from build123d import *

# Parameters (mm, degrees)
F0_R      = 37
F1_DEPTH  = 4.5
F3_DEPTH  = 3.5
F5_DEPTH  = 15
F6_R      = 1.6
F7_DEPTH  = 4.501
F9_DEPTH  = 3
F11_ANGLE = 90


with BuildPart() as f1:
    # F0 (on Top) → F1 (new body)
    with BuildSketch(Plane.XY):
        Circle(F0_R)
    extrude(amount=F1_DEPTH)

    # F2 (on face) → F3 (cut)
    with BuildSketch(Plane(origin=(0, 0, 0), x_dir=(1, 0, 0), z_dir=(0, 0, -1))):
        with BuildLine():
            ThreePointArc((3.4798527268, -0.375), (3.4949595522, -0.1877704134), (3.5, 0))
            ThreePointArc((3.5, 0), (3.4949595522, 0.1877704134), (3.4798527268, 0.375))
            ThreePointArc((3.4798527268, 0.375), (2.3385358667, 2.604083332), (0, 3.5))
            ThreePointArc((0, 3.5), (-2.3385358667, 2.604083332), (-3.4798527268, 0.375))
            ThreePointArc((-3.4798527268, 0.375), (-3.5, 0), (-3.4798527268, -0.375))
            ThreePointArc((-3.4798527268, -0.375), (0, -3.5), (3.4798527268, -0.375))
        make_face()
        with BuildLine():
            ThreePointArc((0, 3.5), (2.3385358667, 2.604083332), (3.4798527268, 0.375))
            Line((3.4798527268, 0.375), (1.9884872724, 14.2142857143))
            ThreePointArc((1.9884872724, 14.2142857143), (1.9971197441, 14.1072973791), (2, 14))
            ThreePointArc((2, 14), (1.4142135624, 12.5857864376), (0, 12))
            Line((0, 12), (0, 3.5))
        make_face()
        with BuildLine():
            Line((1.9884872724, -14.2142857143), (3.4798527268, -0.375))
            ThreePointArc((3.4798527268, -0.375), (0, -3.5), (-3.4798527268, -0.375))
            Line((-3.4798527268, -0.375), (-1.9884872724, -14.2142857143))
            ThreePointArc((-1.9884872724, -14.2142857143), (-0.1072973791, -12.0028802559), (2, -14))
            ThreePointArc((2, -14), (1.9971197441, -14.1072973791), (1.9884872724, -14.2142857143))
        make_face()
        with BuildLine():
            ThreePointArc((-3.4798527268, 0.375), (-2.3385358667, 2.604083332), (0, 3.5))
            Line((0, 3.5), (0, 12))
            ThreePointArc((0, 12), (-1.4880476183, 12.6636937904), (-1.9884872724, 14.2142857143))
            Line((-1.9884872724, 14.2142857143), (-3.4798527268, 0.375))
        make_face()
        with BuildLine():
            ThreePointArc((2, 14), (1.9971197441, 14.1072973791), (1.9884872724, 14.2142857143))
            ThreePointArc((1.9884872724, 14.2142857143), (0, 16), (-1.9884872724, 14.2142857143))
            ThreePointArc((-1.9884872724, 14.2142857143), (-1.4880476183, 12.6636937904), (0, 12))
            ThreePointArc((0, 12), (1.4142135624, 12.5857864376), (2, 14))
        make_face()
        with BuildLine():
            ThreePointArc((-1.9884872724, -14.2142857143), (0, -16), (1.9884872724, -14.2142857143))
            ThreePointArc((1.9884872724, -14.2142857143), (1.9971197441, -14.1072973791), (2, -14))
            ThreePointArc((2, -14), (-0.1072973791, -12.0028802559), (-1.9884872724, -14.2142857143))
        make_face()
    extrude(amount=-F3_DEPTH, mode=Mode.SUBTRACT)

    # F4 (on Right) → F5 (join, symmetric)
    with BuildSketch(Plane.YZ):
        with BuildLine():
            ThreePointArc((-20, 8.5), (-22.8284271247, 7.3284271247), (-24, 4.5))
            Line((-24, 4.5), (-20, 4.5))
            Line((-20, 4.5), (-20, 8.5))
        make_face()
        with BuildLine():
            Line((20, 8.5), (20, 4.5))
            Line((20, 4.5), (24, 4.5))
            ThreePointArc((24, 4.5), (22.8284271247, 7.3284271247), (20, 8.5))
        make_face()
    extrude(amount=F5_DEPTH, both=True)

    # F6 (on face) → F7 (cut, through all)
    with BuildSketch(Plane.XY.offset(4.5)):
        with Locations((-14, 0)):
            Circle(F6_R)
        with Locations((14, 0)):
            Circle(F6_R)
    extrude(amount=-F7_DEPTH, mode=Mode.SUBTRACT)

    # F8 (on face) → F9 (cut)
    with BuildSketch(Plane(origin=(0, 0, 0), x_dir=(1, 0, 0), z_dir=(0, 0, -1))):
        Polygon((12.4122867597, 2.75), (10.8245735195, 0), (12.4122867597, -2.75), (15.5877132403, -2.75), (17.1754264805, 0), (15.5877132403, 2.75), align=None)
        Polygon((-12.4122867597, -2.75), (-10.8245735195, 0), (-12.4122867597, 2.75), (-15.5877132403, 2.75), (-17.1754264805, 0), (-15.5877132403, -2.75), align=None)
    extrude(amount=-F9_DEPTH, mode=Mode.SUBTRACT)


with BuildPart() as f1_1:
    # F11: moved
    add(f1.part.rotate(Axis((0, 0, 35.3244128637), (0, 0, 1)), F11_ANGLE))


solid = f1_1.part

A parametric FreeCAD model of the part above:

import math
import FreeCAD as App
import Part
import Sketcher
from FreeCAD import Vector
Q = App.Units.Quantity


def add_polygon(sketch, points):
    """Adds a closed chain of lines whose ends are joined by coincident constraints."""
    first, n = sketch.GeometryCount, len(points)
    for a, b in zip(points, points[1:] + points[:1]):
        sketch.addGeometry(Part.LineSegment(App.Vector(*a, 0), App.Vector(*b, 0)), False)
    for i in range(n):
        sketch.addConstraint(Sketcher.Constraint("Coincident", first + i, 2, first + (i + 1) % n, 1))

doc = App.newDocument("Part")
body = doc.addObject("PartDesign::Body", "Body")

sketch1 = body.newObject("Sketcher::SketchObject", "Sketch")
sketch1.AttachmentSupport = (doc.getObject("XY_Plane"), [""])
sketch1.MapMode = "FlatFace"
sketch1.addGeometry(Part.Circle(Vector(0, 0, 0), Vector(0, 0, 1), 37), False)
sketch1.addConstraint([
    Sketcher.Constraint("Coincident", 0, 3, -1, 1),
    Sketcher.Constraint("Diameter", 0, Q("74 mm")),
])
pad1 = body.newObject("PartDesign::Pad", "Pad")
pad1.Profile = sketch1
pad1.Length = 4.5

sketch2 = body.newObject("Sketcher::SketchObject", "Sketch001")
sketch2.AttachmentSupport = (doc.getObject("XY_Plane"), [""])
sketch2.MapMode = "FlatFace"
sketch2.addGeometry([
    Part.ArcOfCircle(Part.Circle(Vector(0, 0, 0), Vector(0, 0, 1), 3.5), math.radians(0), math.radians(6.15)),
    Part.ArcOfCircle(Part.Circle(Vector(0, 0, 0), Vector(0, 0, 1), 3.5), math.radians(-6.15), math.radians(0)),
    Part.LineSegment(Vector(3.48, -0.38, 0), Vector(1.99, -14.21, 0)),
    Part.ArcOfCircle(Part.Circle(Vector(0, -14, 0), Vector(0, 0, 1), 2), math.radians(-174), math.radians(-6)),
    Part.LineSegment(Vector(-1.99, -14.21, 0), Vector(-3.48, -0.38, 0)),
    Part.ArcOfCircle(Part.Circle(Vector(0, 0, 0), Vector(0, 0, 1), 3.5), math.radians(173.85), math.radians(186.15)),
    Part.LineSegment(Vector(-3.48, 0.38, 0), Vector(-1.99, 14.21, 0)),
    Part.ArcOfCircle(Part.Circle(Vector(0, 14, 0), Vector(0, 0, 1), 2), math.radians(6), math.radians(174)),
    Part.LineSegment(Vector(1.99, 14.21, 0), Vector(3.48, 0.38, 0)),
], False)
sketch2.addConstraint([
    Sketcher.Constraint("Tangent", 0, 1, 1, 2),
    Sketcher.Constraint("Tangent", 1, 1, 2, 1),
    Sketcher.Constraint("Tangent", 2, 2, 3, 2),
    Sketcher.Constraint("Tangent", 3, 1, 4, 1),
    Sketcher.Constraint("Tangent", 4, 2, 5, 2),
    Sketcher.Constraint("Tangent", 5, 1, 6, 1),
    Sketcher.Constraint("Tangent", 6, 2, 7, 2),
    Sketcher.Constraint("Tangent", 7, 1, 8, 1),
    Sketcher.Constraint("Tangent", 8, 2, 0, 2),
    Sketcher.Constraint("Coincident", 0, 3, -1, 1),
    Sketcher.Constraint("Coincident", 5, 3, -1, 1),
    Sketcher.Constraint("Equal", 0, 1),
    Sketcher.Constraint("Equal", 1, 5),
    Sketcher.Constraint("Equal", 3, 7),
    Sketcher.Constraint("Symmetric", 3, 3, 7, 3, -1, 1),
    Sketcher.Constraint("PointOnObject", 3, 3, -2),
    Sketcher.Constraint("PointOnObject", 0, 1, -1),
    Sketcher.Constraint("Radius", 3, Q("2 mm")),
    Sketcher.Constraint("Radius", 0, Q("3.5 mm")),
    Sketcher.Constraint("DistanceY", 3, 3, -1, 1, Q("14 mm")),
])
pocket1 = body.newObject("PartDesign::Pocket", "Pocket")
pocket1.Profile = sketch2
pocket1.Length = 3.5
pocket1.Reversed = True

sketch3 = body.newObject("Sketcher::SketchObject", "Sketch002")
sketch3.AttachmentSupport = (doc.getObject("YZ_Plane"), [""])
sketch3.MapMode = "FlatFace"
sketch3.addGeometry([
    Part.ArcOfCircle(Part.Circle(Vector(-20, 4.5, 0), Vector(0, 0, 1), 4), math.radians(90), math.radians(180)),
    Part.LineSegment(Vector(-24, 4.5, 0), Vector(-20, 4.5, 0)),
    Part.LineSegment(Vector(-20, 4.5, 0), Vector(-20, 8.5, 0)),
    Part.LineSegment(Vector(20, 8.5, 0), Vector(20, 4.5, 0)),
    Part.LineSegment(Vector(20, 4.5, 0), Vector(24, 4.5, 0)),
    Part.ArcOfCircle(Part.Circle(Vector(20, 4.5, 0), Vector(0, 0, 1), 4), math.radians(0), math.radians(90)),
], False)
sketch3.addConstraint([
    Sketcher.Constraint("Coincident", 0, 2, 1, 1),
    Sketcher.Constraint("Coincident", 1, 2, 2, 1),
    Sketcher.Constraint("Coincident", 2, 2, 0, 1),
    Sketcher.Constraint("Coincident", 3, 2, 4, 1),
    Sketcher.Constraint("Coincident", 4, 2, 5, 1),
    Sketcher.Constraint("Coincident", 5, 2, 3, 1),
    Sketcher.Constraint("Horizontal", 1),
    Sketcher.Constraint("Vertical", 2),
    Sketcher.Constraint("Vertical", 3),
    Sketcher.Constraint("Horizontal", 4),
    Sketcher.Constraint("Coincident", 1, 2, 0, 3),
    Sketcher.Constraint("Coincident", 3, 2, 5, 3),
    Sketcher.Constraint("Equal", 0, 5),
    Sketcher.Constraint("Symmetric", 0, 3, 5, 3, -2),
    Sketcher.Constraint("Radius", 0, Q("4 mm")),
    Sketcher.Constraint("DistanceX", 0, 3, -1, 1, Q("20 mm")),
    Sketcher.Constraint("DistanceY", -1, 1, 0, 3, Q("4.5 mm")),
])
pad2 = body.newObject("PartDesign::Pad", "Pad001")
pad2.Profile = sketch3
pad2.Length = 30
pad2.Midplane = True

sketch4 = body.newObject("Sketcher::SketchObject", "Sketch003")
sketch4.AttachmentSupport = (doc.getObject("XY_Plane"), [""])
sketch4.MapMode = "FlatFace"
sketch4.AttachmentOffset = App.Placement(Vector(0, 0, 4.5), App.Rotation())
sketch4.addGeometry([
    Part.Circle(Vector(-14, 0, 0), Vector(0, 0, 1), 1.6),
    Part.Circle(Vector(14, 0, 0), Vector(0, 0, 1), 1.6),
], False)
sketch4.addConstraint([
    Sketcher.Constraint("Equal", 0, 1),
    Sketcher.Constraint("Symmetric", 0, 3, 1, 3, -1, 1),
    Sketcher.Constraint("PointOnObject", 0, 3, -1),
    Sketcher.Constraint("Diameter", 0, Q("3.2 mm")),
    Sketcher.Constraint("DistanceX", 0, 3, -1, 1, Q("14 mm")),
])
pocket2 = body.newObject("PartDesign::Pocket", "Pocket001")
pocket2.Profile = sketch4
pocket2.Type = "ThroughAll"

sketch5 = body.newObject("Sketcher::SketchObject", "Sketch004")
sketch5.AttachmentSupport = (doc.getObject("XY_Plane"), [""])
sketch5.MapMode = "FlatFace"
add_polygon(sketch5, [(12.4, -2.8), (10.8, 0), (12.4, 2.8), (15.6, 2.8), (17.2, 0), (15.6, -2.8)])
add_polygon(sketch5, [(-12.4, 2.8), (-10.8, 0), (-12.4, -2.8), (-15.6, -2.8), (-17.2, 0), (-15.6, 2.8)])
sketch5.addConstraint([
    Sketcher.Constraint("Horizontal", 2),
    Sketcher.Constraint("Horizontal", 5),
    Sketcher.Constraint("Horizontal", 8),
    Sketcher.Constraint("Horizontal", 11),
    Sketcher.Constraint("Symmetric", 0, 2, 6, 2, -1, 1),
    Sketcher.Constraint("Symmetric", 1, 2, 7, 2, -1, 1),
    Sketcher.Constraint("Symmetric", 3, 2, 9, 2, -1, 1),
    Sketcher.Constraint("Symmetric", 4, 2, 10, 2, -1, 1),
    Sketcher.Constraint("Symmetric", 5, 2, 7, 2, -2),
    Sketcher.Constraint("PointOnObject", 0, 2, -1),
    Sketcher.Constraint("PointOnObject", 3, 2, -1),
    Sketcher.Constraint("Parallel", 0, 3),
    Sketcher.Constraint("Parallel", 1, 4),
    Sketcher.Constraint("Parallel", 3, 6),
    Sketcher.Constraint("Parallel", 6, 9),
    Sketcher.Constraint("Angle", 0, Q("120 deg")),
    Sketcher.Constraint("DistanceX", 7, 2, 4, 2, Q("28 mm")),
    Sketcher.Constraint("DistanceY", 4, 2, 2, 2, Q("5.5 mm")),
    Sketcher.Constraint("DistanceX", 2, 1, 2, 2, Q("3.175426 mm")),
])
pocket3 = body.newObject("PartDesign::Pocket", "Pocket002")
pocket3.Profile = sketch5
pocket3.Length = 3
pocket3.Reversed = True
body2 = doc.addObject("PartDesign::Body", "Body001")
doc.recompute()

body.Placement = App.Placement(Vector(0, 0, 0), App.Rotation(Vector(0, 0, 1), 90))
boolean = body2.newObject("PartDesign::Boolean", "Boolean")
boolean.Type = "Fuse"
boolean.addObjects([body])

doc.recompute()
